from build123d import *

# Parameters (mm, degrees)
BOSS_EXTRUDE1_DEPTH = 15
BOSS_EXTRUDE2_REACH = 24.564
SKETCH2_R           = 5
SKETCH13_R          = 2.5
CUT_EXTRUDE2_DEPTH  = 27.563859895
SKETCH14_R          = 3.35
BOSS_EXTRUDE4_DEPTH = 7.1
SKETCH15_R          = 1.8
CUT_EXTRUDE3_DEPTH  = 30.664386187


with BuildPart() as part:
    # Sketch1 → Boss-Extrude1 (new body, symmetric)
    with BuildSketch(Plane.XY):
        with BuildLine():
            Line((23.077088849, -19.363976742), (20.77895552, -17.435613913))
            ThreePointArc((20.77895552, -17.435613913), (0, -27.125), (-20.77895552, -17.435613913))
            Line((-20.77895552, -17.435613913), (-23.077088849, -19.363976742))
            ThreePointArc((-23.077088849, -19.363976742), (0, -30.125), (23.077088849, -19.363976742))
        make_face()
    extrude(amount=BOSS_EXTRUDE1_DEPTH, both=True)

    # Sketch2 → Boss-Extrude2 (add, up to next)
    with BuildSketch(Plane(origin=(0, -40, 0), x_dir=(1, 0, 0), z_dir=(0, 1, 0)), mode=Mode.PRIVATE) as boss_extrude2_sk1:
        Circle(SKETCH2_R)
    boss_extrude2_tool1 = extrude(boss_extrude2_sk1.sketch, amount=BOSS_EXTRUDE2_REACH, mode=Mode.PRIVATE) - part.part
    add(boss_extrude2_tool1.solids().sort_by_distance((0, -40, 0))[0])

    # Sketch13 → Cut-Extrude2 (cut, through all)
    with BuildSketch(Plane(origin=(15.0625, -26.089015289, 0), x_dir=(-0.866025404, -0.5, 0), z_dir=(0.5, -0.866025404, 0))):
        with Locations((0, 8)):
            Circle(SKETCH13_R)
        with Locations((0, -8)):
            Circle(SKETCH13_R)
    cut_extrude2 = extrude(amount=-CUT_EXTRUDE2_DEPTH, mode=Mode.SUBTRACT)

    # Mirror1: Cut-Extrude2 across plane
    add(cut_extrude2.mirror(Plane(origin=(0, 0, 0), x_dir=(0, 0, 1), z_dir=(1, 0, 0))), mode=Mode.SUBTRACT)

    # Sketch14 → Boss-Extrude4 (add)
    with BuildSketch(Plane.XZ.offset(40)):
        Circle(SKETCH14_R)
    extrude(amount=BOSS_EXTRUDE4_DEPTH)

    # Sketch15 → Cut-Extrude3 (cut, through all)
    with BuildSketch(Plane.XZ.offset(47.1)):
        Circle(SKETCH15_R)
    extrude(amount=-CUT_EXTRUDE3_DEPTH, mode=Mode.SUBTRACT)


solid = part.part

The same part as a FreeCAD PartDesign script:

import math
import FreeCAD as App
import Part
import Sketcher
from FreeCAD import Vector
Q = App.Units.Quantity

doc = App.newDocument("Part")
body = doc.addObject("PartDesign::Body", "Body")

sketch1 = body.newObject("Sketcher::SketchObject", "Sketch")
sketch1.AttachmentSupport = (doc.getObject("XY_Plane"), [""])
sketch1.MapMode = "FlatFace"
sketch1.addGeometry([
    Part.LineSegment(Vector(23.1, -19.4, 0), Vector(20.8, -17.4, 0)),
    Part.ArcOfCircle(Part.Circle(Vector(0, 0, 0), Vector(0, 0, 1), 27.1), math.radians(-140), math.radians(-40)),
    Part.LineSegment(Vector(-20.8, -17.4, 0), Vector(-23.1, -19.4, 0)),
    Part.ArcOfCircle(Part.Circle(Vector(0, 0, 0), Vector(0, 0, 1), 30.1), math.radians(-140), math.radians(-40)),
], False)
sketch1.addConstraint([
    Sketcher.Constraint("Coincident", 0, 2, 1, 2),
    Sketcher.Constraint("Coincident", 1, 1, 2, 1),
    Sketcher.Constraint("Coincident", 2, 2, 3, 1),
    Sketcher.Constraint("Coincident", 3, 2, 0, 1),
    Sketcher.Constraint("Coincident", 1, 3, -1, 1),
    Sketcher.Constraint("Coincident", 3, 3, -1, 1),
    Sketcher.Constraint("Horizontal", 0, 2, 1, 1),
    Sketcher.Constraint("Horizontal", 2, 2, 3, 2),
    Sketcher.Constraint("Angle", 0, Q("140 deg")),
    Sketcher.Constraint("Distance", 0, Q("3 mm")),
    Sketcher.Constraint("Radius", 1, Q("27.125 mm")),
    Sketcher.Constraint("DistanceX", 2, 2, -1, 1, Q("23.077089 mm")),
])
pad1 = body.newObject("PartDesign::Pad", "Pad")
pad1.Profile = sketch1
pad1.Length = 30
pad1.Midplane = True

sketch2 = body.newObject("Sketcher::SketchObject", "Sketch001")
sketch2.AttachmentSupport = (doc.getObject("XZ_Plane"), [""])
sketch2.MapMode = "FlatFace"
sketch2.AttachmentOffset = App.Placement(Vector(0, 0, 40), App.Rotation())
sketch2.addGeometry(Part.Circle(Vector(0, 0, 0), Vector(0, 0, 1), 5), False)
sketch2.addConstraint([
    Sketcher.Constraint("Coincident", 0, 3, -1, 1),
    Sketcher.Constraint("Diameter", 0, Q("10 mm")),
])
pad2 = body.newObject("PartDesign::Pad", "Pad001")
pad2.Profile = sketch2
pad2.Type = "UpToFirst"
pad2.Reversed = True

sketch3 = body.newObject("Sketcher::SketchObject", "Sketch002")
sketch3.Placement = App.Placement(Vector(15.0625, -26.089015, 0), App.Rotation(Vector(-0.866025404, -0.5, 0), Vector(0, 0, -1), Vector(0.5, -0.866025404, 0), "ZXY"))
sketch3.addGeometry([
    Part.Circle(Vector(0, 8, 0), Vector(0, 0, 1), 2.5),
    Part.Circle(Vector(0, -8, 0), Vector(0, 0, 1), 2.5),
], False)
sketch3.addConstraint([
    Sketcher.Constraint("Equal", 0, 1),
    Sketcher.Constraint("Symmetric", 0, 3, 1, 3, -1, 1),
    Sketcher.Constraint("PointOnObject", 0, 3, -2),
    Sketcher.Constraint("Diameter", 0, Q("5 mm")),
    Sketcher.Constraint("DistanceY", -1, 1, 0, 3, Q("8 mm")),
])
pocket1 = body.newObject("PartDesign::Pocket", "Pocket")
pocket1.Profile = sketch3
pocket1.Type = "ThroughAll"
doc.recompute()

mirrored = body.newObject("PartDesign::Mirrored", "Mirrored")
mirrored.Originals = [pocket1]
mirrored.MirrorPlane = (doc.getObject("YZ_Plane"), [""])
body.Tip = mirrored

sketch4 = body.newObject("Sketcher::SketchObject", "Sketch003")
sketch4.AttachmentSupport = (doc.getObject("XZ_Plane"), [""])
sketch4.MapMode = "FlatFace"
sketch4.AttachmentOffset = App.Placement(Vector(0, 0, 40), App.Rotation())
sketch4.addGeometry(Part.Circle(Vector(0, 0, 0), Vector(0, 0, 1), 3.4), False)
sketch4.addConstraint([
    Sketcher.Constraint("Coincident", 0, 3, -1, 1),
    Sketcher.Constraint("Diameter", 0, Q("6.7 mm")),
])
pad3 = body.newObject("PartDesign::Pad", "Pad002")
pad3.Profile = sketch4
pad3.Length = 7.1

sketch5 = body.newObject("Sketcher::SketchObject", "Sketch004")
sketch5.AttachmentSupport = (doc.getObject("XZ_Plane"), [""])
sketch5.MapMode = "FlatFace"
sketch5.AttachmentOffset = App.Placement(Vector(0, 0, 47.1), App.Rotation())
sketch5.addGeometry(Part.Circle(Vector(0, 0, 0), Vector(0, 0, 1), 1.8), False)
sketch5.addConstraint([
    Sketcher.Constraint("Coincident", 0, 3, -1, 1),
    Sketcher.Constraint("Diameter", 0, Q("3.6 mm")),
])
pocket2 = body.newObject("PartDesign::Pocket", "Pocket001")
pocket2.Profile = sketch5
pocket2.Type = "ThroughAll"

doc.recompute()
